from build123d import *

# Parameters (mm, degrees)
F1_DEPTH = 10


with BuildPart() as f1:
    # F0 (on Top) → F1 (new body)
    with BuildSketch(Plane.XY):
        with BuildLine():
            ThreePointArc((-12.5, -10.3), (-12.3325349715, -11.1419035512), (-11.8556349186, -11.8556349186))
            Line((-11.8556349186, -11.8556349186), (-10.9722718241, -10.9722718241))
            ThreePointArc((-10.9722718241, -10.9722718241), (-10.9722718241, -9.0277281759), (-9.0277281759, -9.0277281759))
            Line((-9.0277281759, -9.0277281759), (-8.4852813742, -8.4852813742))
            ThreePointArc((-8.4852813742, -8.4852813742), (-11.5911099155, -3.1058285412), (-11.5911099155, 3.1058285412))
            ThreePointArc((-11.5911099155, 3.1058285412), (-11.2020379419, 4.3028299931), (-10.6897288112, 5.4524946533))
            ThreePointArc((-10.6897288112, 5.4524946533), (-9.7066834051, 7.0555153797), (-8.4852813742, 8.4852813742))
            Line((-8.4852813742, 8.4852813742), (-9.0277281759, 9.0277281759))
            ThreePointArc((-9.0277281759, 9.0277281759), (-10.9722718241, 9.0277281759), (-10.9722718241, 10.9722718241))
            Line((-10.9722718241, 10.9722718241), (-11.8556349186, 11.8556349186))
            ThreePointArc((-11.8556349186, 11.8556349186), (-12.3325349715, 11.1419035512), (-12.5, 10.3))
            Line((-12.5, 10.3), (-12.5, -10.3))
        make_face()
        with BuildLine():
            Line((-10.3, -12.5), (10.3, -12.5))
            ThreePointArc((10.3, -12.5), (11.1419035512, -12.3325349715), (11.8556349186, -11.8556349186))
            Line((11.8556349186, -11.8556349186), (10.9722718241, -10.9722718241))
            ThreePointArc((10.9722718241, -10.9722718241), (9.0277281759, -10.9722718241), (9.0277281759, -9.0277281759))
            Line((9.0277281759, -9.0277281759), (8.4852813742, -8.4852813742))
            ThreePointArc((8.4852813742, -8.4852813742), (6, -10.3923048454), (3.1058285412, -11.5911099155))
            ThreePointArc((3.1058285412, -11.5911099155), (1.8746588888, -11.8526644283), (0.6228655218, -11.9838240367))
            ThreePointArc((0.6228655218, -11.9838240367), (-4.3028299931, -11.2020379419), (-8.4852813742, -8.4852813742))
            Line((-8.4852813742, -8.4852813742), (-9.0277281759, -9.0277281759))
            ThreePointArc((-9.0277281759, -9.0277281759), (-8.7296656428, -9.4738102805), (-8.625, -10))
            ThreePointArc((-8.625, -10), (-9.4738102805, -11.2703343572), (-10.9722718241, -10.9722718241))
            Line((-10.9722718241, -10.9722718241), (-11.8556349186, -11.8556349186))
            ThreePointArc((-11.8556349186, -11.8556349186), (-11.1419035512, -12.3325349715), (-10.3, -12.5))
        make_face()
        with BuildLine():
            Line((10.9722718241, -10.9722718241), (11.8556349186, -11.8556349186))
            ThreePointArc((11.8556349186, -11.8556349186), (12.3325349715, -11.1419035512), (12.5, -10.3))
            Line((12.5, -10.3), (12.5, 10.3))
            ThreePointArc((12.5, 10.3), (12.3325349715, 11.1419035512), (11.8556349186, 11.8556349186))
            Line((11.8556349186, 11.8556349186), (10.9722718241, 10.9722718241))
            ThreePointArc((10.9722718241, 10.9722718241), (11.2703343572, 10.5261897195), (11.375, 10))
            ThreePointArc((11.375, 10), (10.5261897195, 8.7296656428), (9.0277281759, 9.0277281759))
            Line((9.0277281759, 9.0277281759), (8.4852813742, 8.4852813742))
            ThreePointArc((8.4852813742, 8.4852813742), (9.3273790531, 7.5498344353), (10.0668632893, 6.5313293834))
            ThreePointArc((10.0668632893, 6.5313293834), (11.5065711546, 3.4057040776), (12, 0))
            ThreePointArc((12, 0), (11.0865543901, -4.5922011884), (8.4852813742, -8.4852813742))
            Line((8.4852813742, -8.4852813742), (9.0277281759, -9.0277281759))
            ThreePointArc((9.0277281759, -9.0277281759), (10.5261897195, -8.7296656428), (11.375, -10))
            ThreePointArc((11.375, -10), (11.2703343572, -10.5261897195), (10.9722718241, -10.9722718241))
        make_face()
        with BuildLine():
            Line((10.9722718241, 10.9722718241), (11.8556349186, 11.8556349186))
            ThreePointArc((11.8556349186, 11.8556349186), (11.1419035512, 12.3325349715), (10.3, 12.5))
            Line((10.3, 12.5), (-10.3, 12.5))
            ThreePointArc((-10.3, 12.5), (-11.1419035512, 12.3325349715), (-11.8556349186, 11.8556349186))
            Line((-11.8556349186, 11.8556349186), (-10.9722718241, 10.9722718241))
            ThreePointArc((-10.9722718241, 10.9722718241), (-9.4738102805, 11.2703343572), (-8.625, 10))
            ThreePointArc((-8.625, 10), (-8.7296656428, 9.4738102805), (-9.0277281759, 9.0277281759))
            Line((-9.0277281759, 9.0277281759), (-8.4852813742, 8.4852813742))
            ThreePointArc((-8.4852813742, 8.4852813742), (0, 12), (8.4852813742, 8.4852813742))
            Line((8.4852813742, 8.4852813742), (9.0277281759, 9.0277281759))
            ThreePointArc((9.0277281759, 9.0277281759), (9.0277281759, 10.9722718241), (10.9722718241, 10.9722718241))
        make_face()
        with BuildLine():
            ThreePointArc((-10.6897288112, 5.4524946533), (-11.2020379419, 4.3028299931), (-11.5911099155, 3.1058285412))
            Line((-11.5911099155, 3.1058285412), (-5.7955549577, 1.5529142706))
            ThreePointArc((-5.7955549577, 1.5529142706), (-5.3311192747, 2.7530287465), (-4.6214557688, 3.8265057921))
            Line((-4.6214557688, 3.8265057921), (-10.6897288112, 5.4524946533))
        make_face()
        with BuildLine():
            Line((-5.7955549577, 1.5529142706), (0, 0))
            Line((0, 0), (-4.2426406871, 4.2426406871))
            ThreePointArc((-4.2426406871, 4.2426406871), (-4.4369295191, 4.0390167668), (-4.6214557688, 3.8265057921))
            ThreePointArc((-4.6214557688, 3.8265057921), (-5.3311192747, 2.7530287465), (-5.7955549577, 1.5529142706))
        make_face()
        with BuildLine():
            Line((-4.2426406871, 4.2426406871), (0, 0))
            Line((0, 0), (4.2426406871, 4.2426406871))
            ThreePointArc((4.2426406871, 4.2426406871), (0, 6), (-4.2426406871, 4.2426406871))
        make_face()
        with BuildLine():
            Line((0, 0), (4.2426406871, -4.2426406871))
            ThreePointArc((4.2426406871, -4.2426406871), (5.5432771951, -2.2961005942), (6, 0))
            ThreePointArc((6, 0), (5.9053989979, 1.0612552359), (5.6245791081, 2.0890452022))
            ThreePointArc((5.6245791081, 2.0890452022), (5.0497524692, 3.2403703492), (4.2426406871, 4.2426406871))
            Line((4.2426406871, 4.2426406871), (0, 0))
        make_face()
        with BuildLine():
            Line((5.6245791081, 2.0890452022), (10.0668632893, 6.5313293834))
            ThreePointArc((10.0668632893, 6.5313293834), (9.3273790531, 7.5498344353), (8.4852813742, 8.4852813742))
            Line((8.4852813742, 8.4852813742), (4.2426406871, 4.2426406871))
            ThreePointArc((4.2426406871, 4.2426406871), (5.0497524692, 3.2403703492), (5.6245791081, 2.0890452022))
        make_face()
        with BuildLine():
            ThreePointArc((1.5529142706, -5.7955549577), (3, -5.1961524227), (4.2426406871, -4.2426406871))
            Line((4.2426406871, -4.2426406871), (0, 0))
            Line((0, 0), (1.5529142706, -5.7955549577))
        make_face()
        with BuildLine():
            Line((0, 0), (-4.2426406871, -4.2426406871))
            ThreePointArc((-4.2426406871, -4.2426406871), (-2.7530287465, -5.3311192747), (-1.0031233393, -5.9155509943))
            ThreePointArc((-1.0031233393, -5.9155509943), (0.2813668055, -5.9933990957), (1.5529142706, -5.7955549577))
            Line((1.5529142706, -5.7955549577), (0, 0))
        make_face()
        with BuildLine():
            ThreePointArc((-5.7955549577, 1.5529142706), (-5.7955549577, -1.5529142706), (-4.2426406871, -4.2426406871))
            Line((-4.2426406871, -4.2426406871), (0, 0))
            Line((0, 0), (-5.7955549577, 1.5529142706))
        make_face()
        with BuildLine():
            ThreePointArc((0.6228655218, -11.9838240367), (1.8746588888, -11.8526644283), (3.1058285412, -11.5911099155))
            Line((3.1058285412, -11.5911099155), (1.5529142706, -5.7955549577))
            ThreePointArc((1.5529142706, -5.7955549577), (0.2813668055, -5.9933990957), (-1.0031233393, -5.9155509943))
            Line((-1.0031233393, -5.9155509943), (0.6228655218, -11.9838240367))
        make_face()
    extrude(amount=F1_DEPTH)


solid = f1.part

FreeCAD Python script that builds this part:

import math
import FreeCAD as App
import Part
import Sketcher

V = App.Vector
Q = App.Units.Quantity

doc = App.newDocument("Part")
body = doc.addObject("PartDesign::Body", "Body")

# Sketch on XY plane
sketch1 = body.newObject("Sketcher::SketchObject", "Sketch")
sketch1.AttachmentSupport = (doc.getObject("XY_Plane"), [""])
sketch1.MapMode = "FlatFace"
sketch1.addGeometry([
    Part.ArcOfCircle(Part.Circle(V(-10.3, -10.3, 0), V(0, 0, 1), 2.2), math.radians(180), math.radians(225)),  # 0
    Part.ArcOfCircle(Part.Circle(V(-10.3, -10.3, 0), V(0, 0, 1), 2.2), math.radians(-135), math.radians(-90)),  # 1
    Part.LineSegment(V(-10.3, -12.5, 0), V(10.3, -12.5, 0)),  # 2
    Part.ArcOfCircle(Part.Circle(V(10.3, -10.3, 0), V(0, 0, 1), 2.2), math.radians(-90), math.radians(-45)),  # 3
    Part.ArcOfCircle(Part.Circle(V(10.3, -10.3, 0), V(0, 0, 1), 2.2), math.radians(-45), math.radians(0)),  # 4
    Part.LineSegment(V(12.5, -10.3, 0), V(12.5, 10.3, 0)),  # 5
    Part.ArcOfCircle(Part.Circle(V(10.3, 10.3, 0), V(0, 0, 1), 2.2), math.radians(0), math.radians(45)),  # 6
    Part.ArcOfCircle(Part.Circle(V(10.3, 10.3, 0), V(0, 0, 1), 2.2), math.radians(45), math.radians(90)),  # 7
    Part.LineSegment(V(10.3, 12.5, 0), V(-10.3, 12.5, 0)),  # 8
    Part.ArcOfCircle(Part.Circle(V(-10.3, 10.3, 0), V(0, 0, 1), 2.2), math.radians(90), math.radians(135)),  # 9
    Part.ArcOfCircle(Part.Circle(V(-10.3, 10.3, 0), V(0, 0, 1), 2.2), math.radians(135), math.radians(180)),  # 10
    Part.LineSegment(V(-12.5, 10.3, 0), V(-12.5, -10.3, 0)),  # 11
    Part.ArcOfCircle(Part.Circle(V(10, 10, 0), V(0, 0, 1), 1.4), math.radians(0), math.radians(45)),  # 12
    Part.ArcOfCircle(Part.Circle(V(10, 10, 0), V(0, 0, 1), 1.4), math.radians(-135), math.radians(0)),  # 13
    Part.ArcOfCircle(Part.Circle(V(10, 10, 0), V(0, 0, 1), 1.4), math.radians(45), math.radians(225)),  # 14
    Part.ArcOfCircle(Part.Circle(V(0, 0, 0), V(0, 0, 1), 12), math.radians(0), math.radians(33)),  # 15
    Part.ArcOfCircle(Part.Circle(V(0, 0, 0), V(0, 0, 1), 12), math.radians(-45), math.radians(0)),  # 16
    Part.ArcOfCircle(Part.Circle(V(0, 0, 0), V(0, 0, 1), 12), math.radians(-75), math.radians(-45)),  # 17
    Part.LineSegment(V(3.1, -11.6, 0), V(1.6, -5.8, 0)),  # 18
    Part.ArcOfCircle(Part.Circle(V(0, 0, 0), V(0, 0, 1), 6), math.radians(-75), math.radians(-45)),  # 19
    Part.ArcOfCircle(Part.Circle(V(0, 0, 0), V(0, 0, 1), 6), math.radians(-45), math.radians(0)),  # 20
    Part.ArcOfCircle(Part.Circle(V(0, 0, 0), V(0, 0, 1), 6), math.radians(0), math.radians(20)),  # 21
    Part.LineSegment(V(5.6, 2.1, 0), V(10.1, 6.5, 0)),  # 22
    Part.ArcOfCircle(Part.Circle(V(0, 0, 0), V(0, 0, 1), 12), math.radians(-135), math.radians(-87)),  # 23
    Part.ArcOfCircle(Part.Circle(V(0, 0, 0), V(0, 0, 1), 12), math.radians(165), math.radians(225)),  # 24
    Part.LineSegment(V(-11.6, 3.1, 0), V(-5.8, 1.6, 0)),  # 25
    Part.ArcOfCircle(Part.Circle(V(0, 0, 0), V(0, 0, 1), 6), math.radians(165), math.radians(225)),  # 26
    Part.ArcOfCircle(Part.Circle(V(0, 0, 0), V(0, 0, 1), 6), math.radians(-135), math.radians(-100)),  # 27
    Part.LineSegment(V(-1, -5.9, 0), V(0.6, -12, 0)),  # 28
    Part.ArcOfCircle(Part.Circle(V(0, 0, 0), V(0, 0, 1), 6), math.radians(45), math.radians(135)),  # 29
    Part.ArcOfCircle(Part.Circle(V(0, 0, 0), V(0, 0, 1), 6), math.radians(135), math.radians(140.38)),  # 30
    Part.LineSegment(V(-4.6, 3.8, 0), V(-10.7, 5.5, 0)),  # 31
    Part.ArcOfCircle(Part.Circle(V(0, 0, 0), V(0, 0, 1), 12), math.radians(135), math.radians(152.98)),  # 32
    Part.ArcOfCircle(Part.Circle(V(0, 0, 0), V(0, 0, 1), 12), math.radians(45), math.radians(135)),  # 33
    Part.LineSegment(V(8.5, 8.5, 0), V(4.2, 4.2, 0)),  # 34
    Part.ArcOfCircle(Part.Circle(V(-10, 10, 0), V(0, 0, 1), 1.4), math.radians(135), math.radians(315)),  # 35
    Part.ArcOfCircle(Part.Circle(V(-10, 10, 0), V(0, 0, 1), 1.4), math.radians(0), math.radians(135)),  # 36
    Part.ArcOfCircle(Part.Circle(V(-10, 10, 0), V(0, 0, 1), 1.4), math.radians(-45), math.radians(0)),  # 37
    Part.ArcOfCircle(Part.Circle(V(10, -10, 0), V(0, 0, 1), 1.4), math.radians(135), math.radians(315)),  # 38
    Part.ArcOfCircle(Part.Circle(V(10, -10, 0), V(0, 0, 1), 1.4), math.radians(0), math.radians(135)),  # 39
    Part.ArcOfCircle(Part.Circle(V(10, -10, 0), V(0, 0, 1), 1.4), math.radians(-45), math.radians(0)),  # 40
    Part.ArcOfCircle(Part.Circle(V(-10, -10, 0), V(0, 0, 1), 1.4), math.radians(45), math.radians(225)),  # 41
    Part.ArcOfCircle(Part.Circle(V(-10, -10, 0), V(0, 0, 1), 1.4), math.radians(0), math.radians(45)),  # 42
    Part.ArcOfCircle(Part.Circle(V(-10, -10, 0), V(0, 0, 1), 1.4), math.radians(-135), math.radians(0)),  # 43
], False)
sketch1.addConstraint([
    Sketcher.Constraint("Tangent", 0, 2, 1, 1),
    Sketcher.Constraint("Tangent", 1, 2, 2, 1),
    Sketcher.Constraint("Tangent", 2, 2, 3, 1),
    Sketcher.Constraint("Tangent", 3, 2, 4, 1),
    Sketcher.Constraint("Tangent", 4, 2, 5, 1),
    Sketcher.Constraint("Tangent", 5, 2, 6, 1),
    Sketcher.Constraint("Tangent", 6, 2, 7, 1),
    Sketcher.Constraint("Tangent", 7, 2, 8, 1),
    Sketcher.Constraint("Tangent", 8, 2, 9, 1),
    Sketcher.Constraint("Tangent", 9, 2, 10, 1),
    Sketcher.Constraint("Tangent", 10, 2, 11, 1),
    Sketcher.Constraint("Tangent", 11, 2, 0, 1),
    Sketcher.Constraint("Tangent", 12, 1, 13, 2),
    Sketcher.Constraint("Tangent", 13, 1, 14, 2),
    Sketcher.Constraint("Tangent", 14, 1, 12, 2),
    Sketcher.Constraint("Tangent", 15, 1, 16, 2),
    Sketcher.Constraint("Tangent", 16, 1, 17, 2),
    Sketcher.Constraint("Coincident", 17, 1, 18, 1),
    Sketcher.Constraint("Coincident", 18, 2, 19, 1),
    Sketcher.Constraint("Tangent", 19, 2, 20, 1),
    Sketcher.Constraint("Tangent", 20, 2, 21, 1),
    Sketcher.Constraint("Coincident", 21, 2, 22, 1),
    Sketcher.Constraint("Coincident", 22, 2, 15, 2),
    Sketcher.Constraint("Tangent", 23, 1, 24, 2),
    Sketcher.Constraint("Coincident", 24, 1, 25, 1),
    Sketcher.Constraint("Coincident", 25, 2, 26, 1),
    Sketcher.Constraint("Tangent", 26, 2, 27, 1),
    Sketcher.Constraint("Coincident", 27, 2, 28, 1),
    Sketcher.Constraint("Coincident", 28, 2, 23, 2),
    Sketcher.Constraint("Tangent", 29, 2, 30, 1),
    Sketcher.Constraint("Coincident", 30, 2, 31, 1),
    Sketcher.Constraint("Coincident", 31, 2, 32, 2),
    Sketcher.Constraint("Tangent", 32, 1, 33, 2),
    Sketcher.Constraint("Coincident", 33, 1, 34, 1),
    Sketcher.Constraint("Coincident", 34, 2, 29, 1),
    Sketcher.Constraint("Tangent", 35, 1, 36, 2),
    Sketcher.Constraint("Tangent", 36, 1, 37, 2),
    Sketcher.Constraint("Tangent", 37, 1, 35, 2),
    Sketcher.Constraint("Tangent", 38, 1, 39, 2),
    Sketcher.Constraint("Tangent", 39, 1, 40, 2),
    Sketcher.Constraint("Tangent", 40, 1, 38, 2),
    Sketcher.Constraint("Tangent", 41, 1, 42, 2),
    Sketcher.Constraint("Tangent", 42, 1, 43, 2),
    Sketcher.Constraint("Tangent", 43, 1, 41, 2),
    Sketcher.Constraint("Horizontal", 2),
    Sketcher.Constraint("Vertical", 5),
    Sketcher.Constraint("Horizontal", 8),
    Sketcher.Constraint("Vertical", 11),
    Sketcher.Constraint("Coincident", 15, 3, -1, 1),
    Sketcher.Constraint("Coincident", 17, 3, -1, 1),
    Sketcher.Constraint("Coincident", 19, 3, -1, 1),
    Sketcher.Constraint("Coincident", 21, 3, -1, 1),
    Sketcher.Constraint("Coincident", 23, 3, -1, 1),
    Sketcher.Constraint("Coincident", 26, 3, -1, 1),
    Sketcher.Constraint("Coincident", 29, 3, -1, 1),
    Sketcher.Constraint("Coincident", 32, 3, -1, 1),
    Sketcher.Constraint("Equal", 0, 1),
    Sketcher.Constraint("Equal", 1, 3),
    Sketcher.Constraint("Equal", 3, 4),
    Sketcher.Constraint("Equal", 4, 6),
    Sketcher.Constraint("Equal", 6, 7),
    Sketcher.Constraint("Equal", 7, 9),
    Sketcher.Constraint("Equal", 9, 10),
    Sketcher.Constraint("Equal", 17, 23),
    Sketcher.Constraint("Equal", 23, 24),
    Sketcher.Constraint("Equal", 21, 26),
    Sketcher.Constraint("Equal", 26, 27),
    Sketcher.Constraint("Equal", 27, 29),
    Sketcher.Constraint("Equal", 29, 30),
    Sketcher.Constraint("Equal", 24, 32),
    Sketcher.Constraint("Equal", 32, 33),
    Sketcher.Constraint("Equal", 14, 35),
    Sketcher.Constraint("Equal", 37, 38),
    Sketcher.Constraint("Equal", 40, 41),
    Sketcher.Constraint("Symmetric", 0, 3, 6, 3, -1, 1),
    Sketcher.Constraint("Symmetric", 35, 3, 38, 3, -1, 1),
    Sketcher.Constraint("Symmetric", 12, 3, 41, 3, -1, 1),
    Sketcher.Constraint("Symmetric", 12, 3, 35, 3, -2),
    Sketcher.Constraint("PointOnObject", 15, 1, -1),
    Sketcher.Constraint("PointOnObject", 20, 2, -1),
    Sketcher.Constraint("Parallel", 18, 28),
    Sketcher.Constraint("Parallel", 25, 31),
    Sketcher.Constraint("Parallel", 22, 34),
    Sketcher.Constraint("Horizontal", 0, 2, 3, 2),
    Sketcher.Constraint("Horizontal", 6, 2, 9, 2),
    Sketcher.Constraint("Horizontal", 37, 3, 12, 1),
    Sketcher.Constraint("Horizontal", 16, 1, 23, 1),
    Sketcher.Constraint("Horizontal", 19, 2, 26, 2),
    Sketcher.Constraint("Horizontal", 32, 1, 33, 1),
    Sketcher.Constraint("Horizontal", 29, 2, 34, 2),
    Sketcher.Constraint("Horizontal", 14, 1, 35, 1),
    Sketcher.Constraint("Horizontal", 12, 1, 36, 1),
    Sketcher.Constraint("Horizontal", 13, 1, 37, 1),
    Sketcher.Constraint("Horizontal", 43, 3, 39, 1),
    Sketcher.Constraint("Horizontal", 38, 1, 41, 1),
    Sketcher.Constraint("Horizontal", 39, 1, 42, 1),
    Sketcher.Constraint("Horizontal", 40, 1, 43, 1),
    Sketcher.Constraint("Vertical", 3, 2, 6, 2),
    Sketcher.Constraint("Vertical", 26, 2, 29, 2),
    Sketcher.Constraint("Vertical", 23, 1, 32, 1),
    Sketcher.Constraint("Vertical", 13, 1, 38, 1),
    Sketcher.Constraint("Vertical", 14, 1, 40, 1),
    Sketcher.Constraint("Equal", 8, 5),
    Sketcher.Constraint("Equal", 22, 28),
    Sketcher.Constraint("Equal", 28, 31),
    Sketcher.Constraint("Radius", 15, Q("12 mm")),
    Sketcher.Constraint("Radius", 19, Q("6 mm")),
    Sketcher.Constraint("Radius", 0, Q("2.2 mm")),
    Sketcher.Constraint("Angle", 18, Q("105 deg")),
    Sketcher.Constraint("Angle", 22, Q("45 deg")),
    Sketcher.Constraint("Angle", 25, Q("-15 deg")),
    Sketcher.Constraint("DistanceX", 2, 1, 2, 2, Q("20.6 mm")),
    Sketcher.Constraint("DistanceX", -1, 1, 12, 3, Q("10 mm")),
    Sketcher.Constraint("DistanceY", -1, 1, 12, 3, Q("10 mm")),
    Sketcher.Constraint("Radius", 12, Q("1.375 mm")),
    Sketcher.Constraint("Distance", 22, Q("6.282339 mm")),
    Sketcher.Constraint("DistanceX", -1, 1, 13, 1, Q("9.027728 mm")),
    Sketcher.Constraint("DistanceX", -1, 1, 14, 1, Q("10.972272 mm")),
    Sketcher.Constraint("DistanceX", -1, 1, 16, 1, Q("8.485281 mm")),
    Sketcher.Constraint("DistanceX", -1, 1, 17, 1, Q("3.105829 mm")),
    Sketcher.Constraint("DistanceX", 24, 1, -1, 1, Q("11.59111 mm")),
    Sketcher.Constraint("DistanceX", 0, 2, -1, 1, Q("11.855635 mm")),
])
pad1 = body.newObject("PartDesign::Pad", "Pad")
pad1.Profile = sketch1
pad1.Length = 10

doc.recompute()
